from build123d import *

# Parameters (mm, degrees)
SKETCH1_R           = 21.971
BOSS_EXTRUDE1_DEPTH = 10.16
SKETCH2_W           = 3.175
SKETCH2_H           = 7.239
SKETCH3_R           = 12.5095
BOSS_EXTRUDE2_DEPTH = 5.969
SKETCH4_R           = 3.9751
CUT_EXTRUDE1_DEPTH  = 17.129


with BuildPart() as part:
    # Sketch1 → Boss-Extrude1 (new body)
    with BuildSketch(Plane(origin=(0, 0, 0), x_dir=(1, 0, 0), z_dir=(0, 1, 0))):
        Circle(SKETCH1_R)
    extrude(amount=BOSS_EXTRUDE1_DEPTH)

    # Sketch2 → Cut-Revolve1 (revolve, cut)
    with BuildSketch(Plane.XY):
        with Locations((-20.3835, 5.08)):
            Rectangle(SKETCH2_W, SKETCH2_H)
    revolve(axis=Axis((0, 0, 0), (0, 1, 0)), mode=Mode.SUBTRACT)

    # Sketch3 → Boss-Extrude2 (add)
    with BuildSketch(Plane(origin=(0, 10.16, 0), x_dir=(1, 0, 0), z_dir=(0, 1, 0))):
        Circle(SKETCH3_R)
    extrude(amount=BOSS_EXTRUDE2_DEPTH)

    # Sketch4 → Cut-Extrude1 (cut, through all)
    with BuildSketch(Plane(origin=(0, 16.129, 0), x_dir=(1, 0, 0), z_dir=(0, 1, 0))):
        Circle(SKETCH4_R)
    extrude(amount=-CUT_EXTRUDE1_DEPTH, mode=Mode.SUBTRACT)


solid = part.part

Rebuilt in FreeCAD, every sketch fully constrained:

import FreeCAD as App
import Part
import Sketcher
from FreeCAD import Vector
Q = App.Units.Quantity

doc = App.newDocument("Part")
body = doc.addObject("PartDesign::Body", "Body")

# Sketch on XZ plane
sketch1 = body.newObject("Sketcher::SketchObject", "Sketch")
sketch1.AttachmentSupport = (doc.getObject("XZ_Plane"), [""])
sketch1.MapMode = "FlatFace"
sketch1.addGeometry(Part.Circle(Vector(0, 0, 0), Vector(0, 0, 1), 22), False)
sketch1.addConstraint(Sketcher.Constraint("Coincident", 0, 3, -1, 1))
sketch1.addConstraint(Sketcher.Constraint("Diameter", 0, Q("1.73 in")))
pad1 = body.newObject("PartDesign::Pad", "Pad")
pad1.Profile = sketch1
pad1.Length = Q("0.4 in")
pad1.Reversed = True

# Sketch on XY plane
sketch2 = body.newObject("Sketcher::SketchObject", "Sketch001")
sketch2.AttachmentSupport = (doc.getObject("XY_Plane"), [""])
sketch2.MapMode = "FlatFace"
sketch2.addGeometry(Part.LineSegment(Vector(-22, 8.7, 0), Vector(-22, 1.5, 0)), False)
sketch2.addGeometry(Part.LineSegment(Vector(-22, 1.5, 0), Vector(-18.8, 1.5, 0)), False)
sketch2.addGeometry(Part.LineSegment(Vector(-18.8, 1.5, 0), Vector(-18.8, 8.7, 0)), False)
sketch2.addGeometry(Part.LineSegment(Vector(-18.8, 8.7, 0), Vector(-22, 8.7, 0)), False)
sketch2.addConstraint(Sketcher.Constraint("Coincident", 0, 2, 1, 1))
sketch2.addConstraint(Sketcher.Constraint("Coincident", 1, 2, 2, 1))
sketch2.addConstraint(Sketcher.Constraint("Coincident", 2, 2, 3, 1))
sketch2.addConstraint(Sketcher.Constraint("Coincident", 3, 2, 0, 1))
sketch2.addConstraint(Sketcher.Constraint("Vertical", 0))
sketch2.addConstraint(Sketcher.Constraint("Horizontal", 1))
sketch2.addConstraint(Sketcher.Constraint("Vertical", 2))
sketch2.addConstraint(Sketcher.Constraint("Horizontal", 3))
sketch2.addConstraint(Sketcher.Constraint("DistanceX", 1, 1, 1, 2, Q("0.125 in")))
sketch2.addConstraint(Sketcher.Constraint("DistanceY", 0, 2, 0, 1, Q("0.285 in")))
sketch2.addConstraint(Sketcher.Constraint("DistanceX", 1, 2, -1, 1, Q("0.74 in")))
sketch2.addConstraint(Sketcher.Constraint("DistanceY", -1, 1, 0, 2, Q("0.0575 in")))
groove = body.newObject("PartDesign::Groove", "Groove")
groove.Profile = sketch2
groove.ReferenceAxis = (sketch2, ["V_Axis"])
groove.Angle = 360

# Sketch on XZ plane
sketch3 = body.newObject("Sketcher::SketchObject", "Sketch002")
sketch3.AttachmentSupport = (doc.getObject("XZ_Plane"), [""])
sketch3.MapMode = "FlatFace"
sketch3.AttachmentOffset = App.Placement(Vector(0, 0, -0.4 * 25.4), App.Rotation())
sketch3.addGeometry(Part.Circle(Vector(0, 0, 0), Vector(0, 0, 1), 13), False)
sketch3.addConstraint(Sketcher.Constraint("Coincident", 0, 3, -1, 1))
sketch3.addConstraint(Sketcher.Constraint("Diameter", 0, Q("0.985 in")))
pad2 = body.newObject("PartDesign::Pad", "Pad001")
pad2.Profile = sketch3
pad2.Length = Q("0.235 in")
pad2.Reversed = True

# Sketch on XZ plane
sketch4 = body.newObject("Sketcher::SketchObject", "Sketch003")
sketch4.AttachmentSupport = (doc.getObject("XZ_Plane"), [""])
sketch4.MapMode = "FlatFace"
sketch4.AttachmentOffset = App.Placement(Vector(0, 0, -0.635 * 25.4), App.Rotation())
sketch4.addGeometry(Part.Circle(Vector(0, 0, 0), Vector(0, 0, 1), 4), False)
sketch4.addConstraint(Sketcher.Constraint("Coincident", 0, 3, -1, 1))
sketch4.addConstraint(Sketcher.Constraint("Diameter", 0, Q("0.313 in")))
pocket1 = body.newObject("PartDesign::Pocket", "Pocket")
pocket1.Profile = sketch4
pocket1.Type = "ThroughAll"
pocket1.Reversed = True

doc.recompute()
